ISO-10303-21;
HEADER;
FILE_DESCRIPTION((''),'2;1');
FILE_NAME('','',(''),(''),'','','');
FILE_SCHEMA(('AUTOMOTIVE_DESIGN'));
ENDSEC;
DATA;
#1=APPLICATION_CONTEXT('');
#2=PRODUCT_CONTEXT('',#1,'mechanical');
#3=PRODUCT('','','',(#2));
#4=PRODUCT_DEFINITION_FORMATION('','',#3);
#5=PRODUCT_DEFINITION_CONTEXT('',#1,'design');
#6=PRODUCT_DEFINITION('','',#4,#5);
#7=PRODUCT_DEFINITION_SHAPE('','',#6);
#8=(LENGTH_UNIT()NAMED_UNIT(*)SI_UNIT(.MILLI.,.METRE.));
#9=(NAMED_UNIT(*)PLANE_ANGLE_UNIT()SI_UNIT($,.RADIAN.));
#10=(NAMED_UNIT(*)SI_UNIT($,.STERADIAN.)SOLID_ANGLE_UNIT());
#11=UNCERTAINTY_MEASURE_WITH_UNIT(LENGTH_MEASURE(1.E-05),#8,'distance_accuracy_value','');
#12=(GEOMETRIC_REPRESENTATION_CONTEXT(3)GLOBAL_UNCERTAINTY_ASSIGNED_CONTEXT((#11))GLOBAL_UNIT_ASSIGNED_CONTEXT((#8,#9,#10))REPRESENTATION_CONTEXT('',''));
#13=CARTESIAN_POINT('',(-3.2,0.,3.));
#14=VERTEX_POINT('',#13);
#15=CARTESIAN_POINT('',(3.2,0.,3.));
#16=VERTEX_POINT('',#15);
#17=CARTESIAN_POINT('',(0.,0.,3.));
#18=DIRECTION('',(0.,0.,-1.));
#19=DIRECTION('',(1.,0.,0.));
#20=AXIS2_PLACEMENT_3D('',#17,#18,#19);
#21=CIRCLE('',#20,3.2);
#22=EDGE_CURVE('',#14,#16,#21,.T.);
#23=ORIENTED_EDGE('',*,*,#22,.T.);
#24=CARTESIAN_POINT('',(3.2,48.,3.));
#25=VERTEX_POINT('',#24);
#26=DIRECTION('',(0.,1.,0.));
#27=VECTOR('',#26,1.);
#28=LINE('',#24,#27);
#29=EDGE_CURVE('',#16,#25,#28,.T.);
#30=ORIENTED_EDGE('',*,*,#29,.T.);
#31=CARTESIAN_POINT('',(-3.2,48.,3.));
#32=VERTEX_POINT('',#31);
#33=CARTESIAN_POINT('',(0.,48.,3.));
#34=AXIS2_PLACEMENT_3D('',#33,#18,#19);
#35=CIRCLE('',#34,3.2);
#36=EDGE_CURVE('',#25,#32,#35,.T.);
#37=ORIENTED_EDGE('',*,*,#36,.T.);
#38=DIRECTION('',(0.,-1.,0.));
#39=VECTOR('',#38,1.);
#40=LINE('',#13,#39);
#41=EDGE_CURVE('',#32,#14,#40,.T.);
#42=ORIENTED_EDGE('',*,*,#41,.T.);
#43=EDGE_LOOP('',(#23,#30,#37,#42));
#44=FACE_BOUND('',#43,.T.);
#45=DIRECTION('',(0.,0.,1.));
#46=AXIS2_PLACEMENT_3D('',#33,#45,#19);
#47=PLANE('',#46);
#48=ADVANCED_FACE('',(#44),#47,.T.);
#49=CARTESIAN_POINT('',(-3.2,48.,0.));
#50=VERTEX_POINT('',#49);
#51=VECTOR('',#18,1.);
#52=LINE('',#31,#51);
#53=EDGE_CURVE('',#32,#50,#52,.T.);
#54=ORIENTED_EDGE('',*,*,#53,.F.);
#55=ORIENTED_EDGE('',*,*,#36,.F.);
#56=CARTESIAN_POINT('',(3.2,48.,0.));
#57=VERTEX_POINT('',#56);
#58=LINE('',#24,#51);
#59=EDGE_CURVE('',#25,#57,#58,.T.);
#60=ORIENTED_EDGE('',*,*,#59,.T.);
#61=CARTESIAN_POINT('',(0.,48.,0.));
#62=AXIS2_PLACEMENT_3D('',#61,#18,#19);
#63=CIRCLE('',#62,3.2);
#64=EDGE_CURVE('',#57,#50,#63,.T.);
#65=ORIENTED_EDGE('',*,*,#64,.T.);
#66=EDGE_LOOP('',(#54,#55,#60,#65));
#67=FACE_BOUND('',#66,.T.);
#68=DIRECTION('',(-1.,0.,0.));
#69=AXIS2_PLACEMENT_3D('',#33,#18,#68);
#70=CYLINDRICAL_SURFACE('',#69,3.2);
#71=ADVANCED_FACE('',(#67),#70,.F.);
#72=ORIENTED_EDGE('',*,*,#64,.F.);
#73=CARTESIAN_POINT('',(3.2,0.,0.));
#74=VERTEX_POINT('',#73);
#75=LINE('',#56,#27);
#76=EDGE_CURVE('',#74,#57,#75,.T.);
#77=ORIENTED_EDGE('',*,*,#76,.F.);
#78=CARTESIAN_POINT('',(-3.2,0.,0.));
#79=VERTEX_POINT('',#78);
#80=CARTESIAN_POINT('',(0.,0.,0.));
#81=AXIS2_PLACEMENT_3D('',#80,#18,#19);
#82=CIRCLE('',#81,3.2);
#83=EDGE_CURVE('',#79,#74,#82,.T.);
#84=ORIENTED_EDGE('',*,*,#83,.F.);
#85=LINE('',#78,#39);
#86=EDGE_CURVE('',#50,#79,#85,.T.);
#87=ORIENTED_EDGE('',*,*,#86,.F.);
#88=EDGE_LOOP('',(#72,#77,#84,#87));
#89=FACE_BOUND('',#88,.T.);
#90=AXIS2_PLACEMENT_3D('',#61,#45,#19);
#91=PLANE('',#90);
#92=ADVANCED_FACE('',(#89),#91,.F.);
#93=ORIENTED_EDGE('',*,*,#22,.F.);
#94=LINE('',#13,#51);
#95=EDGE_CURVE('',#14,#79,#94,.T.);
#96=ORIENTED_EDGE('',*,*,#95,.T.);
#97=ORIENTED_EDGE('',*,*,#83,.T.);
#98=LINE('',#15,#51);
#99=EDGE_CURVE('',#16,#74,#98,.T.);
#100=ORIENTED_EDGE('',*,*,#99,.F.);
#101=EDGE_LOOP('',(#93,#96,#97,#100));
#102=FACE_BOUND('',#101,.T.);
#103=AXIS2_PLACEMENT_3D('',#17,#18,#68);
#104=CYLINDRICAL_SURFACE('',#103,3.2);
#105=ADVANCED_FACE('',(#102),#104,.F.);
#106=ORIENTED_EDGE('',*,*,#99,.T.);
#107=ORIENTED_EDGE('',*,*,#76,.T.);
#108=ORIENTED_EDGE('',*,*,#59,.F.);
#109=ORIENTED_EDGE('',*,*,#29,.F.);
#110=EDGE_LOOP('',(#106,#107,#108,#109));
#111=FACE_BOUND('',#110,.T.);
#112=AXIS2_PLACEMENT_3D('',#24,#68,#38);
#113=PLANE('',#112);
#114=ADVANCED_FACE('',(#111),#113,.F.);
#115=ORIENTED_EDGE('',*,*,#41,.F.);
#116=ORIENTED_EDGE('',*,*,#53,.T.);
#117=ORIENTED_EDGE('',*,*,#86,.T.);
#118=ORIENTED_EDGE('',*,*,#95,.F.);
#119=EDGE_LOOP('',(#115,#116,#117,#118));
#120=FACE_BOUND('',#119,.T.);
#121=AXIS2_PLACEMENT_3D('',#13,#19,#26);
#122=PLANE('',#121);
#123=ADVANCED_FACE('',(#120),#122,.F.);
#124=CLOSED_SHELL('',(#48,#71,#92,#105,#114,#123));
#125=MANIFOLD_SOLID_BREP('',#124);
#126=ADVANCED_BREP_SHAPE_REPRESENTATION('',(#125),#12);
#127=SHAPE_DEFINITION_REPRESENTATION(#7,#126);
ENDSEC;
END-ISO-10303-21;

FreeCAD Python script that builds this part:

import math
import FreeCAD as App
import Part
import Sketcher
Q = App.Units.Quantity

doc = App.newDocument("Part")
body = doc.addObject("PartDesign::Body", "Body")

# Sketch on XY plane
sketch1 = body.newObject("Sketcher::SketchObject", "Sketch")
sketch1.AttachmentSupport = (doc.getObject("XY_Plane"), [""])
sketch1.MapMode = "FlatFace"
sketch1.addGeometry([
    Part.LineSegment(App.Vector(-3.2, 48, 0), App.Vector(-3.2, 0, 0)),
    Part.ArcOfCircle(Part.Circle(App.Vector(0, 0, 0), App.Vector(0, 0, 1), 3.2), math.radians(0), math.radians(180)),
    Part.LineSegment(App.Vector(3.2, 0, 0), App.Vector(3.2, 48, 0)),
    Part.ArcOfCircle(Part.Circle(App.Vector(0, 48, 0), App.Vector(0, 0, 1), 3.2), math.radians(180), math.radians(360)),
], False)
sketch1.addConstraint([
    Sketcher.Constraint("Tangent", 0, 2, 1, 2),
    Sketcher.Constraint("Tangent", 1, 1, 2, 1),
    Sketcher.Constraint("Tangent", 2, 2, 3, 2),
    Sketcher.Constraint("Tangent", 3, 1, 0, 1),
    Sketcher.Constraint("Vertical", 0),
    Sketcher.Constraint("Vertical", 2),
    Sketcher.Constraint("Coincident", 1, 3, -1, 1),
    Sketcher.Constraint("Radius", 1, Q("3.2 mm")),
    Sketcher.Constraint("DistanceY", 0, 2, 0, 1, Q("48 mm")),
])
pad1 = body.newObject("PartDesign::Pad", "Pad")
pad1.Profile = sketch1
pad1.Length = 3

doc.recompute()
